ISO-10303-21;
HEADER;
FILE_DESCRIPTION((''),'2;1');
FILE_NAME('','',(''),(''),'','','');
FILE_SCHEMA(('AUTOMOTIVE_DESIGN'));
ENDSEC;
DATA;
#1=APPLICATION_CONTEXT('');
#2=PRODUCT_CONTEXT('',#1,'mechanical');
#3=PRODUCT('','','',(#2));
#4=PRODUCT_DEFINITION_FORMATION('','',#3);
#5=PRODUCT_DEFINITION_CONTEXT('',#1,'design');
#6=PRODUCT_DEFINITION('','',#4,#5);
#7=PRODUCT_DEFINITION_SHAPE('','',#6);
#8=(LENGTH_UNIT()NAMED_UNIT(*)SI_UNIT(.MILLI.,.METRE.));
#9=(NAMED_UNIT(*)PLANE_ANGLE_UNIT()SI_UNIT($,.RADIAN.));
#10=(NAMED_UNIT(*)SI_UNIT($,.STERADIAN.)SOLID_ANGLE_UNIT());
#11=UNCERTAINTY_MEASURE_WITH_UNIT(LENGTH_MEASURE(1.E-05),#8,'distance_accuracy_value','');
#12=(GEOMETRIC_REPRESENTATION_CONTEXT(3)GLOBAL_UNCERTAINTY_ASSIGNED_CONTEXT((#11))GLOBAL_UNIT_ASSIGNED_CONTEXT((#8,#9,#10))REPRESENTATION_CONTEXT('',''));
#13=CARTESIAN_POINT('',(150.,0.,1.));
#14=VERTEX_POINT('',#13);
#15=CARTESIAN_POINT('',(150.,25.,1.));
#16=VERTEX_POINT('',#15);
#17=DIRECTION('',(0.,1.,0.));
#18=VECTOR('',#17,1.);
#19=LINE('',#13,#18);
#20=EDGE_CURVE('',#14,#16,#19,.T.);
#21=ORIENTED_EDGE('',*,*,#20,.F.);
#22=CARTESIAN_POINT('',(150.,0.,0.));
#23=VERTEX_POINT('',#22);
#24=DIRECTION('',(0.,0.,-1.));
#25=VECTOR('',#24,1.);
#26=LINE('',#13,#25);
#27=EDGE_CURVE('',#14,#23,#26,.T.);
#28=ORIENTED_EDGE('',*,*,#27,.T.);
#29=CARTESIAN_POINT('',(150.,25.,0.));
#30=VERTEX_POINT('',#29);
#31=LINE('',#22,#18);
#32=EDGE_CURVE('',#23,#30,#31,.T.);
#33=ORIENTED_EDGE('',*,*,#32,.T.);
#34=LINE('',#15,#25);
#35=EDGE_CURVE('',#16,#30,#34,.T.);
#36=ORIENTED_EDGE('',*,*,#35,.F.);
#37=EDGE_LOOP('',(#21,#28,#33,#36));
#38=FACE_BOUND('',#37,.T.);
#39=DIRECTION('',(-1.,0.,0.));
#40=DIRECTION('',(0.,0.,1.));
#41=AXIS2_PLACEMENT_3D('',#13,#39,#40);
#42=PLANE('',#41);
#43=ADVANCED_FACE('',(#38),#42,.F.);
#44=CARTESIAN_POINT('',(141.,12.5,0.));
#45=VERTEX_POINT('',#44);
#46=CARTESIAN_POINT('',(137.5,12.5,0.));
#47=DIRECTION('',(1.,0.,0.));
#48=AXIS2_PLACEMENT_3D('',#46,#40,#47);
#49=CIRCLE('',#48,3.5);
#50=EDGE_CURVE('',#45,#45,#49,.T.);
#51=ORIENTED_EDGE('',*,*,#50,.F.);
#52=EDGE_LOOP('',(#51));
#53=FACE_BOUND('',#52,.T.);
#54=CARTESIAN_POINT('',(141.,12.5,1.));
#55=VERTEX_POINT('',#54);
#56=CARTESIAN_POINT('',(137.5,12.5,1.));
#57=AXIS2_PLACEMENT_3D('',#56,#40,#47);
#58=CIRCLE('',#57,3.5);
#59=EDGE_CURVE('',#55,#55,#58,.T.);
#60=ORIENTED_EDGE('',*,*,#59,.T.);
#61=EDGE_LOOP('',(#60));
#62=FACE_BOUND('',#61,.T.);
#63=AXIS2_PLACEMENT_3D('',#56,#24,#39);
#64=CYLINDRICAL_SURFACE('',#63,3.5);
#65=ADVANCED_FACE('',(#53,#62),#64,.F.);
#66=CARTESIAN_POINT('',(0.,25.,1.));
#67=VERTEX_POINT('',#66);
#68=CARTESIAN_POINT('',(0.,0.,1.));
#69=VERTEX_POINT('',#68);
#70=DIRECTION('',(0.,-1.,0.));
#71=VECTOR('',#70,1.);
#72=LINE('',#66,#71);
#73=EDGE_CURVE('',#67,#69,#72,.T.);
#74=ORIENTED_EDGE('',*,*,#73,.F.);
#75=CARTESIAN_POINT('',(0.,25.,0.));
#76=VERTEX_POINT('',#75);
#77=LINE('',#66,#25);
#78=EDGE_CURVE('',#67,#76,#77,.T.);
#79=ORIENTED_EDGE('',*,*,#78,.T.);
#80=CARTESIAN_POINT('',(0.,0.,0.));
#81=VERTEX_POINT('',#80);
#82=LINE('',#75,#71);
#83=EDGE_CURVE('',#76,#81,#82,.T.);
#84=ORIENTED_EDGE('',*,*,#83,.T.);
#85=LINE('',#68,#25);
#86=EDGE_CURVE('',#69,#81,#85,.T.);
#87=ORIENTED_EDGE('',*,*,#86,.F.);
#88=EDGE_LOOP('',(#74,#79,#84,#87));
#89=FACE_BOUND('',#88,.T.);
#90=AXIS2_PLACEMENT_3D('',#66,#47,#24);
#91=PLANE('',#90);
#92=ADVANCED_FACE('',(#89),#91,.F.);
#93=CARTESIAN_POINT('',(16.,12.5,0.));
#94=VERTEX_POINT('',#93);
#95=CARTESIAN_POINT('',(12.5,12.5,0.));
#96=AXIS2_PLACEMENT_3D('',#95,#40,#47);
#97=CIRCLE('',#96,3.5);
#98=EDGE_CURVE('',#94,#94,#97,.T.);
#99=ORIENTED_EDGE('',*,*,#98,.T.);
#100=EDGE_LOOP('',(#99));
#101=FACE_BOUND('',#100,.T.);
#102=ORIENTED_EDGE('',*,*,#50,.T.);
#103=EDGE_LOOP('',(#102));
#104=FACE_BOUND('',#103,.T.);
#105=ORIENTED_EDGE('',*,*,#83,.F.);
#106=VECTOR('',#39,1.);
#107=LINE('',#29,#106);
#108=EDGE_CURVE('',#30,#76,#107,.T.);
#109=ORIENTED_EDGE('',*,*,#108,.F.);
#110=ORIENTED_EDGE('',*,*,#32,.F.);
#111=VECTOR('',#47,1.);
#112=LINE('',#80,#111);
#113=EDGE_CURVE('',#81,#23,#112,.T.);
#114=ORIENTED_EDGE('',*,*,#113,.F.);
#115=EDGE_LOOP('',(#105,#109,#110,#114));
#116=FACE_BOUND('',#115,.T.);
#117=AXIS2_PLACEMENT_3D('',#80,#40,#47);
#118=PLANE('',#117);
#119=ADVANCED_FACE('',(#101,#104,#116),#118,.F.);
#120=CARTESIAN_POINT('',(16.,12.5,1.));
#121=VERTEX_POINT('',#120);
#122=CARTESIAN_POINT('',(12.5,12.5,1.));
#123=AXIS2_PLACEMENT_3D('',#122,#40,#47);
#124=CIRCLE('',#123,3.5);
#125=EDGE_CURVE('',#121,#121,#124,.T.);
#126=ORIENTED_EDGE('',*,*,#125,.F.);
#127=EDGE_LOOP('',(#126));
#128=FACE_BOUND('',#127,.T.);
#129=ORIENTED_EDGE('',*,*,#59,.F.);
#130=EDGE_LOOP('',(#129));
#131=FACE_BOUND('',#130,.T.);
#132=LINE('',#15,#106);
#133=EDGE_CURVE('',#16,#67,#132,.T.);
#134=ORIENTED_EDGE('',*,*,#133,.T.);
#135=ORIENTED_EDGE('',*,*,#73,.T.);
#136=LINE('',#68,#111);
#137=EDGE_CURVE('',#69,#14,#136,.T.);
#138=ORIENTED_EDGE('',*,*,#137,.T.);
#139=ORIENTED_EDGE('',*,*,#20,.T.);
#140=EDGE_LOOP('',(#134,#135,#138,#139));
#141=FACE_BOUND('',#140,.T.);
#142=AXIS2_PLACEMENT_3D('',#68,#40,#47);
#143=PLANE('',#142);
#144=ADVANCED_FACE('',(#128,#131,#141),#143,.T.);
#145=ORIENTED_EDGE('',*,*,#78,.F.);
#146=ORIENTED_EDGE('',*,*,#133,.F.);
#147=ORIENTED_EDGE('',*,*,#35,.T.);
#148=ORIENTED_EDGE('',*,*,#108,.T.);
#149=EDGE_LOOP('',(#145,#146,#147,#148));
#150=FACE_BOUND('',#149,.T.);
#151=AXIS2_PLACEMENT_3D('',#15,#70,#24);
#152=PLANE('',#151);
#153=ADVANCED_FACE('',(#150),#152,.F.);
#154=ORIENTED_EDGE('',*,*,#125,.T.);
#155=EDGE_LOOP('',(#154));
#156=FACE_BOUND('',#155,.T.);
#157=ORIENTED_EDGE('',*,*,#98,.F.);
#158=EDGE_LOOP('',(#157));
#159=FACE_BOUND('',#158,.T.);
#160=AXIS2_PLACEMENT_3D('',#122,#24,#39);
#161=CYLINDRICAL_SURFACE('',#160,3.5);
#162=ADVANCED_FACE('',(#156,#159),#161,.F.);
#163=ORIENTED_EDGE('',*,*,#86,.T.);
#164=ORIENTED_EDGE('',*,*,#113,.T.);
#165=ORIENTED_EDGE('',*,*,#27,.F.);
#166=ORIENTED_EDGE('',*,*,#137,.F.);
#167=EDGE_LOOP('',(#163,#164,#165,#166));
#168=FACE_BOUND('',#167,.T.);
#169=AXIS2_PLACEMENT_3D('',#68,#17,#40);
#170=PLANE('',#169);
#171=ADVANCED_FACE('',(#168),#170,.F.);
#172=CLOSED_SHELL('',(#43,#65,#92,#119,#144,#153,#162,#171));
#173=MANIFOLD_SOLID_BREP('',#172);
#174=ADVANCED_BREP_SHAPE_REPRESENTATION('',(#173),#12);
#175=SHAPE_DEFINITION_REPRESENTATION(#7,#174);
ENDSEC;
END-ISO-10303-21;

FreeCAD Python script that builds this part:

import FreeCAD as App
import Part
import Sketcher
Q = App.Units.Quantity


def add_polygon(sketch, points):
    """Adds a closed chain of lines whose ends are joined by coincident constraints."""
    first, n = sketch.GeometryCount, len(points)
    for a, b in zip(points, points[1:] + points[:1]):
        sketch.addGeometry(Part.LineSegment(App.Vector(*a, 0), App.Vector(*b, 0)), False)
    for i in range(n):
        sketch.addConstraint(Sketcher.Constraint("Coincident", first + i, 2, first + (i + 1) % n, 1))

doc = App.newDocument("Part")
body = doc.addObject("PartDesign::Body", "Body")

# Sketch on XY plane
sketch1 = body.newObject("Sketcher::SketchObject", "Sketch")
sketch1.AttachmentSupport = (doc.getObject("XY_Plane"), [""])
sketch1.MapMode = "FlatFace"
add_polygon(sketch1, [(0, 25), (0, 0), (150, 0), (150, 25)])  # lines 0-3
sketch1.addGeometry(Part.Circle(App.Vector(12.5, 12.5, 0), App.Vector(0, 0, 1), 3.5), False)  # 4
sketch1.addGeometry(Part.Circle(App.Vector(137.5, 12.5, 0), App.Vector(0, 0, 1), 3.5), False)  # 5
sketch1.addConstraint([
    Sketcher.Constraint("Vertical", 0),
    Sketcher.Constraint("Horizontal", 1),
    Sketcher.Constraint("Vertical", 2),
    Sketcher.Constraint("Horizontal", 3),
    Sketcher.Constraint("Coincident", 0, 2, -1, 1),
    Sketcher.Constraint("Equal", 4, 5),
    Sketcher.Constraint("Horizontal", 4, 3, 5, 3),
    Sketcher.Constraint("Diameter", 4, Q("7 mm")),
    Sketcher.Constraint("DistanceX", 1, 1, 1, 2, Q("150 mm")),
    Sketcher.Constraint("DistanceY", 0, 2, 0, 1, Q("25 mm")),
    Sketcher.Constraint("DistanceX", 4, 3, 5, 3, Q("125 mm")),
    Sketcher.Constraint("DistanceX", -1, 1, 4, 3, Q("12.5 mm")),
    Sketcher.Constraint("DistanceY", -1, 1, 4, 3, Q("12.5 mm")),
])
pad1 = body.newObject("PartDesign::Pad", "Pad")
pad1.Profile = sketch1
pad1.Length = 1

doc.recompute()
